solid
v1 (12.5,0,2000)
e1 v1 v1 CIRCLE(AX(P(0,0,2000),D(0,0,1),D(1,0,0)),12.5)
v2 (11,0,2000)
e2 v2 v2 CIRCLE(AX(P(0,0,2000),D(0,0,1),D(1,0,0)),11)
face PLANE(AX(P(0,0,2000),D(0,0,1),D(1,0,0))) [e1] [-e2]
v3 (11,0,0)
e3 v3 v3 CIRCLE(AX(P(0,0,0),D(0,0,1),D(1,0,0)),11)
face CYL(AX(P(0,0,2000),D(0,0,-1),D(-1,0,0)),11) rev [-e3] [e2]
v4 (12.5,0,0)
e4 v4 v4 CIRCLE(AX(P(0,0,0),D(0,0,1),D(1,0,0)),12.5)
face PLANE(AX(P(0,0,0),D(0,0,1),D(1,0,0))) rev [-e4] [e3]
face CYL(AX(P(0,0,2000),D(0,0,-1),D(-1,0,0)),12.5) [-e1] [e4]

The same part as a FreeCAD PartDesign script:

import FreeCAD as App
import Part
import Sketcher

V = App.Vector

doc = App.newDocument("Part")
body = doc.addObject("PartDesign::Body", "Body")

sketch1 = body.newObject("Sketcher::SketchObject", "Sketch")
sketch1.AttachmentSupport = (doc.getObject("XY_Plane"), [""])
sketch1.MapMode = "FlatFace"
sketch1.addGeometry(Part.Circle(V(0, 0, 0), V(0, 0, 1), 12.5), False)
sketch1.addGeometry(Part.Circle(V(0, 0, 0), V(0, 0, 1), 11), False)
sketch1.addConstraint(Sketcher.Constraint("Coincident", 0, 3, -1, 1))
sketch1.addConstraint(Sketcher.Constraint("Coincident", 1, 3, -1, 1))
sketch1.addConstraint(Sketcher.Constraint("Diameter", 0, 25.0))
sketch1.addConstraint(Sketcher.Constraint("Diameter", 1, 22.0))
pad1 = body.newObject("PartDesign::Pad", "Pad")
pad1.Profile = sketch1
pad1.Length = 2000

doc.recompute()
